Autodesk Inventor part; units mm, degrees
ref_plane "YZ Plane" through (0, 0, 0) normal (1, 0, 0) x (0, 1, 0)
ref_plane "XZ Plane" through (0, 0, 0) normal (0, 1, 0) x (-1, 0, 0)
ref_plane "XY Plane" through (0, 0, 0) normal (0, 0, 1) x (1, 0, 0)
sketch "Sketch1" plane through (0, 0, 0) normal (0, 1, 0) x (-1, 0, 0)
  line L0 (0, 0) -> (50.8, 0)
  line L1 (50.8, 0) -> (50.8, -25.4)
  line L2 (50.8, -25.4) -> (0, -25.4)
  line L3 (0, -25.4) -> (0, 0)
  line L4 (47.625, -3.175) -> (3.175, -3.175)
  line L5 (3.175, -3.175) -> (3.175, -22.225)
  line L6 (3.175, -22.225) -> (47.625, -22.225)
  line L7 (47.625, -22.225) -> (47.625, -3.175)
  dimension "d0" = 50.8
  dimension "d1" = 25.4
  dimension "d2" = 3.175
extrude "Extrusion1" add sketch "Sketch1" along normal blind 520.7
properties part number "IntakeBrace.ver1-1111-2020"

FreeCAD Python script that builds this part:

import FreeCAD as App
import Part
import Sketcher
Q = App.Units.Quantity

doc = App.newDocument("Part")
body = doc.addObject("PartDesign::Body", "Body")

# Sketch on XZ plane
sketch1 = body.newObject("Sketcher::SketchObject", "Sketch")
sketch1.AttachmentSupport = (doc.getObject("XZ_Plane"), [""])
sketch1.MapMode = "FlatFace"
sketch1.addGeometry([
    Part.LineSegment(App.Vector(-51, 0, 0), App.Vector(0, 0, 0)),  # 0
    Part.LineSegment(App.Vector(0, 0, 0), App.Vector(0, -25, 0)),  # 1
    Part.LineSegment(App.Vector(0, -25, 0), App.Vector(-51, -25, 0)),  # 2
    Part.LineSegment(App.Vector(-51, -25, 0), App.Vector(-51, 0, 0)),  # 3
    Part.LineSegment(App.Vector(-3, -3, 0), App.Vector(-48, -3, 0)),  # 4
    Part.LineSegment(App.Vector(-48, -3, 0), App.Vector(-48, -22, 0)),  # 5
    Part.LineSegment(App.Vector(-48, -22, 0), App.Vector(-3, -22, 0)),  # 6
    Part.LineSegment(App.Vector(-3, -22, 0), App.Vector(-3, -3, 0)),  # 7
], False)
sketch1.addConstraint([
    Sketcher.Constraint("Coincident", 0, 2, 1, 1),
    Sketcher.Constraint("Coincident", 1, 2, 2, 1),
    Sketcher.Constraint("Coincident", 2, 2, 3, 1),
    Sketcher.Constraint("Coincident", 3, 2, 0, 1),
    Sketcher.Constraint("Coincident", 4, 2, 5, 1),
    Sketcher.Constraint("Coincident", 5, 2, 6, 1),
    Sketcher.Constraint("Coincident", 6, 2, 7, 1),
    Sketcher.Constraint("Coincident", 7, 2, 4, 1),
    Sketcher.Constraint("Horizontal", 0),
    Sketcher.Constraint("Vertical", 1),
    Sketcher.Constraint("Horizontal", 2),
    Sketcher.Constraint("Vertical", 3),
    Sketcher.Constraint("Horizontal", 4),
    Sketcher.Constraint("Vertical", 5),
    Sketcher.Constraint("Horizontal", 6),
    Sketcher.Constraint("Vertical", 7),
    Sketcher.Constraint("Coincident", 0, 2, -1, 1),
    Sketcher.Constraint("DistanceX", 0, 1, 0, 2, Q("2 in")),
    Sketcher.Constraint("DistanceY", 1, 2, 1, 1, Q("1 in")),
    Sketcher.Constraint("DistanceY", 4, 2, -1, 1, Q("0.125 in")),
    Sketcher.Constraint("DistanceX", 6, 2, -1, 1, Q("0.125 in")),
    Sketcher.Constraint("DistanceX", 3, 2, 4, 2, Q("0.125 in")),
    Sketcher.Constraint("DistanceY", 2, 2, 5, 2, Q("0.125 in")),
])
pad1 = body.newObject("PartDesign::Pad", "Pad")
pad1.Profile = sketch1
pad1.Length = Q("20.5 in")
pad1.Reversed = True

doc.recompute()
